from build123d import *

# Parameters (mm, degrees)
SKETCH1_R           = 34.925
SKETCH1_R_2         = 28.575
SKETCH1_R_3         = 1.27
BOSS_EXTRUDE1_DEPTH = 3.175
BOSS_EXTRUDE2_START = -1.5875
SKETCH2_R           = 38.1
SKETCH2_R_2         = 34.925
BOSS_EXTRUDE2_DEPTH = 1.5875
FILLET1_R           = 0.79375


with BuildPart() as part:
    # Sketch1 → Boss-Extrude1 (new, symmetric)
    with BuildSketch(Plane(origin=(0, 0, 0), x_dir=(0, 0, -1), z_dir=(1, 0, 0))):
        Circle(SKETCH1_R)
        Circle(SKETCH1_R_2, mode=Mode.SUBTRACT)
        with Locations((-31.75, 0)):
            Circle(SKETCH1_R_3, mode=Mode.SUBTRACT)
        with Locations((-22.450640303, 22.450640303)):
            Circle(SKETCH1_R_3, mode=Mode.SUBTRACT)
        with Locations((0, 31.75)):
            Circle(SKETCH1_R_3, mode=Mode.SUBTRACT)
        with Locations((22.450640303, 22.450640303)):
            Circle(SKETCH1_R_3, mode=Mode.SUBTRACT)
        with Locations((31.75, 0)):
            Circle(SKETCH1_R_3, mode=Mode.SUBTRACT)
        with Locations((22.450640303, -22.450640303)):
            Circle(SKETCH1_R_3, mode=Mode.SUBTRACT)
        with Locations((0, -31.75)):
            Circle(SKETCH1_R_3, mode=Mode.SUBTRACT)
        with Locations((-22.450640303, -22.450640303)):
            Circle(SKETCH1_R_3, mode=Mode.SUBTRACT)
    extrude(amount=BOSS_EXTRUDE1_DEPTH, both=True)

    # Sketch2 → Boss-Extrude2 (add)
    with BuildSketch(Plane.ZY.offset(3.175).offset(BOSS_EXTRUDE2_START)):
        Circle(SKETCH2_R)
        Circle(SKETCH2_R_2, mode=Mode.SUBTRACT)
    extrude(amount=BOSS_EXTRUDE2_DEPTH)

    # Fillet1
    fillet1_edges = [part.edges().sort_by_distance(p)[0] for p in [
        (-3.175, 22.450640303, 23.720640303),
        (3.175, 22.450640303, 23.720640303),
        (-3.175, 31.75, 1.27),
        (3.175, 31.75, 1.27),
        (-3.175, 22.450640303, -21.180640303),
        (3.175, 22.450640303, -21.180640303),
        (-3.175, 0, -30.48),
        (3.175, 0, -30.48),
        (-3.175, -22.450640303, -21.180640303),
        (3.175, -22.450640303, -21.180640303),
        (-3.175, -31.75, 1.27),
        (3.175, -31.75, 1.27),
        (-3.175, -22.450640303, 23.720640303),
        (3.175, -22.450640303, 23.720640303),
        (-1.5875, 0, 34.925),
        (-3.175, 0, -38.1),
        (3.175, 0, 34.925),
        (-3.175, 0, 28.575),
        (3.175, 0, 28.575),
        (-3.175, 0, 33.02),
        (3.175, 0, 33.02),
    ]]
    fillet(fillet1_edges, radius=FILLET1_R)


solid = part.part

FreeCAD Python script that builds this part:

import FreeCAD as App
import Part
import Sketcher

V = App.Vector
Q = App.Units.Quantity


def edges_at(feature, points):
    """Names of the edges that pass closest to the given points."""
    edges = feature.Shape.Edges
    near = lambda p: min(range(len(edges)), key=lambda i: edges[i].distToShape(Part.Vertex(*p))[0])
    return sorted({f"Edge{near(p) + 1}" for p in points})

doc = App.newDocument("Part")
body = doc.addObject("PartDesign::Body", "Body")

sketch1 = body.newObject("Sketcher::SketchObject", "Sketch")
sketch1.AttachmentSupport = (doc.getObject("YZ_Plane"), [""])
sketch1.MapMode = "FlatFace"
sketch1.addGeometry(Part.Circle(V(0, 0, 0), V(0, 0, 1), 34.9), False)
sketch1.addGeometry(Part.Circle(V(-22.5, 22.5, 0), V(0, 0, 1), 1.3), False)
sketch1.addGeometry(Part.Circle(V(-31.8, 0, 0), V(0, 0, 1), 1.3), False)
sketch1.addGeometry(Part.Circle(V(-22.5, -22.5, 0), V(0, 0, 1), 1.3), False)
sketch1.addGeometry(Part.Circle(V(0, 31.8, 0), V(0, 0, 1), 1.3), False)
sketch1.addGeometry(Part.Circle(V(0, 0, 0), V(0, 0, 1), 28.6), False)
sketch1.addGeometry(Part.Circle(V(22.5, 22.5, 0), V(0, 0, 1), 1.3), False)
sketch1.addGeometry(Part.Circle(V(0, -31.8, 0), V(0, 0, 1), 1.3), False)
sketch1.addGeometry(Part.Circle(V(31.8, 0, 0), V(0, 0, 1), 1.3), False)
sketch1.addGeometry(Part.Circle(V(22.5, -22.5, 0), V(0, 0, 1), 1.3), False)
sketch1.addConstraint(Sketcher.Constraint("Coincident", 0, 3, -1, 1))
sketch1.addConstraint(Sketcher.Constraint("Coincident", 5, 3, -1, 1))
sketch1.addConstraint(Sketcher.Constraint("Equal", 1, 2))
sketch1.addConstraint(Sketcher.Constraint("Equal", 2, 3))
sketch1.addConstraint(Sketcher.Constraint("Equal", 3, 4))
sketch1.addConstraint(Sketcher.Constraint("Equal", 4, 6))
sketch1.addConstraint(Sketcher.Constraint("Equal", 6, 7))
sketch1.addConstraint(Sketcher.Constraint("Equal", 7, 8))
sketch1.addConstraint(Sketcher.Constraint("Equal", 8, 9))
sketch1.addConstraint(Sketcher.Constraint("Symmetric", 3, 3, 6, 3, -1, 1))
sketch1.addConstraint(Sketcher.Constraint("Symmetric", 4, 3, 7, 3, -1, 1))
sketch1.addConstraint(Sketcher.Constraint("Symmetric", 2, 3, 8, 3, -1, 1))
sketch1.addConstraint(Sketcher.Constraint("Symmetric", 1, 3, 9, 3, -1, 1))
sketch1.addConstraint(Sketcher.Constraint("Symmetric", 1, 3, 6, 3, -2))
sketch1.addConstraint(Sketcher.Constraint("PointOnObject", 2, 3, -1))
sketch1.addConstraint(Sketcher.Constraint("PointOnObject", 4, 3, -2))
sketch1.addConstraint(Sketcher.Constraint("Diameter", 1, Q("0.1 in")))
sketch1.addConstraint(Sketcher.Constraint("Diameter", 0, Q("2.75 in")))
sketch1.addConstraint(Sketcher.Constraint("Diameter", 5, Q("2.25 in")))
sketch1.addConstraint(Sketcher.Constraint("DistanceX", 2, 3, -1, 1, Q("1.25 in")))
sketch1.addConstraint(Sketcher.Constraint("DistanceY", -1, 1, 4, 3, Q("1.25 in")))
sketch1.addConstraint(Sketcher.Constraint("DistanceX", 1, 3, -1, 1, 22.45064))
sketch1.addConstraint(Sketcher.Constraint("DistanceY", -1, 1, 1, 3, 22.45064))
pad1 = body.newObject("PartDesign::Pad", "Pad")
pad1.Profile = sketch1
pad1.Length = Q("0.25 in")
pad1.Midplane = True

sketch2 = body.newObject("Sketcher::SketchObject", "Sketch001")
sketch2.AttachmentSupport = (doc.getObject("YZ_Plane"), [""])
sketch2.MapMode = "FlatFace"
sketch2.AttachmentOffset = App.Placement(V(0, 0, -0.0625 * 25.4), App.Rotation())
sketch2.addGeometry(Part.Circle(V(0, 0, 0), V(0, 0, 1), 38), False)
sketch2.addGeometry(Part.Circle(V(0, 0, 0), V(0, 0, 1), 35), False)
sketch2.addConstraint(Sketcher.Constraint("Coincident", 0, 3, -1, 1))
sketch2.addConstraint(Sketcher.Constraint("Coincident", 1, 3, -1, 1))
sketch2.addConstraint(Sketcher.Constraint("Diameter", 0, Q("3 in")))
sketch2.addConstraint(Sketcher.Constraint("Diameter", 1, Q("2.75 in")))
pad2 = body.newObject("PartDesign::Pad", "Pad001")
pad2.Profile = sketch2
pad2.Length = Q("0.0625 in")
pad2.Reversed = True
doc.recompute()

fillet = body.newObject("PartDesign::Fillet", "Fillet")
fillet.Base = (pad2, edges_at(pad2, [
    (-3.175, 22.451, 23.721),
    (3.175, 22.451, 23.721),
    (-3.175, 31.75, 1.27),
    (3.175, 31.75, 1.27),
    (-3.175, 22.451, -21.181),
    (3.175, 22.451, -21.181),
    (-3.175, 0, -30.48),
    (3.175, 0, -30.48),
    (-3.175, -22.451, -21.181),
    (3.175, -22.451, -21.181),
    (-3.175, -31.75, 1.27),
    (3.175, -31.75, 1.27),
    (-3.175, -22.451, 23.721),
    (3.175, -22.451, 23.721),
    (-1.587, 0, 34.925),
    (-3.175, 0, -38.1),
    (3.175, 0, 34.925),
    (-3.175, 0, 28.575),
    (3.175, 0, 28.575),
    (-3.175, 0, 33.02),
    (3.175, 0, 33.02),
]))
fillet.Radius = Q("0.03125 in")

doc.recompute()
